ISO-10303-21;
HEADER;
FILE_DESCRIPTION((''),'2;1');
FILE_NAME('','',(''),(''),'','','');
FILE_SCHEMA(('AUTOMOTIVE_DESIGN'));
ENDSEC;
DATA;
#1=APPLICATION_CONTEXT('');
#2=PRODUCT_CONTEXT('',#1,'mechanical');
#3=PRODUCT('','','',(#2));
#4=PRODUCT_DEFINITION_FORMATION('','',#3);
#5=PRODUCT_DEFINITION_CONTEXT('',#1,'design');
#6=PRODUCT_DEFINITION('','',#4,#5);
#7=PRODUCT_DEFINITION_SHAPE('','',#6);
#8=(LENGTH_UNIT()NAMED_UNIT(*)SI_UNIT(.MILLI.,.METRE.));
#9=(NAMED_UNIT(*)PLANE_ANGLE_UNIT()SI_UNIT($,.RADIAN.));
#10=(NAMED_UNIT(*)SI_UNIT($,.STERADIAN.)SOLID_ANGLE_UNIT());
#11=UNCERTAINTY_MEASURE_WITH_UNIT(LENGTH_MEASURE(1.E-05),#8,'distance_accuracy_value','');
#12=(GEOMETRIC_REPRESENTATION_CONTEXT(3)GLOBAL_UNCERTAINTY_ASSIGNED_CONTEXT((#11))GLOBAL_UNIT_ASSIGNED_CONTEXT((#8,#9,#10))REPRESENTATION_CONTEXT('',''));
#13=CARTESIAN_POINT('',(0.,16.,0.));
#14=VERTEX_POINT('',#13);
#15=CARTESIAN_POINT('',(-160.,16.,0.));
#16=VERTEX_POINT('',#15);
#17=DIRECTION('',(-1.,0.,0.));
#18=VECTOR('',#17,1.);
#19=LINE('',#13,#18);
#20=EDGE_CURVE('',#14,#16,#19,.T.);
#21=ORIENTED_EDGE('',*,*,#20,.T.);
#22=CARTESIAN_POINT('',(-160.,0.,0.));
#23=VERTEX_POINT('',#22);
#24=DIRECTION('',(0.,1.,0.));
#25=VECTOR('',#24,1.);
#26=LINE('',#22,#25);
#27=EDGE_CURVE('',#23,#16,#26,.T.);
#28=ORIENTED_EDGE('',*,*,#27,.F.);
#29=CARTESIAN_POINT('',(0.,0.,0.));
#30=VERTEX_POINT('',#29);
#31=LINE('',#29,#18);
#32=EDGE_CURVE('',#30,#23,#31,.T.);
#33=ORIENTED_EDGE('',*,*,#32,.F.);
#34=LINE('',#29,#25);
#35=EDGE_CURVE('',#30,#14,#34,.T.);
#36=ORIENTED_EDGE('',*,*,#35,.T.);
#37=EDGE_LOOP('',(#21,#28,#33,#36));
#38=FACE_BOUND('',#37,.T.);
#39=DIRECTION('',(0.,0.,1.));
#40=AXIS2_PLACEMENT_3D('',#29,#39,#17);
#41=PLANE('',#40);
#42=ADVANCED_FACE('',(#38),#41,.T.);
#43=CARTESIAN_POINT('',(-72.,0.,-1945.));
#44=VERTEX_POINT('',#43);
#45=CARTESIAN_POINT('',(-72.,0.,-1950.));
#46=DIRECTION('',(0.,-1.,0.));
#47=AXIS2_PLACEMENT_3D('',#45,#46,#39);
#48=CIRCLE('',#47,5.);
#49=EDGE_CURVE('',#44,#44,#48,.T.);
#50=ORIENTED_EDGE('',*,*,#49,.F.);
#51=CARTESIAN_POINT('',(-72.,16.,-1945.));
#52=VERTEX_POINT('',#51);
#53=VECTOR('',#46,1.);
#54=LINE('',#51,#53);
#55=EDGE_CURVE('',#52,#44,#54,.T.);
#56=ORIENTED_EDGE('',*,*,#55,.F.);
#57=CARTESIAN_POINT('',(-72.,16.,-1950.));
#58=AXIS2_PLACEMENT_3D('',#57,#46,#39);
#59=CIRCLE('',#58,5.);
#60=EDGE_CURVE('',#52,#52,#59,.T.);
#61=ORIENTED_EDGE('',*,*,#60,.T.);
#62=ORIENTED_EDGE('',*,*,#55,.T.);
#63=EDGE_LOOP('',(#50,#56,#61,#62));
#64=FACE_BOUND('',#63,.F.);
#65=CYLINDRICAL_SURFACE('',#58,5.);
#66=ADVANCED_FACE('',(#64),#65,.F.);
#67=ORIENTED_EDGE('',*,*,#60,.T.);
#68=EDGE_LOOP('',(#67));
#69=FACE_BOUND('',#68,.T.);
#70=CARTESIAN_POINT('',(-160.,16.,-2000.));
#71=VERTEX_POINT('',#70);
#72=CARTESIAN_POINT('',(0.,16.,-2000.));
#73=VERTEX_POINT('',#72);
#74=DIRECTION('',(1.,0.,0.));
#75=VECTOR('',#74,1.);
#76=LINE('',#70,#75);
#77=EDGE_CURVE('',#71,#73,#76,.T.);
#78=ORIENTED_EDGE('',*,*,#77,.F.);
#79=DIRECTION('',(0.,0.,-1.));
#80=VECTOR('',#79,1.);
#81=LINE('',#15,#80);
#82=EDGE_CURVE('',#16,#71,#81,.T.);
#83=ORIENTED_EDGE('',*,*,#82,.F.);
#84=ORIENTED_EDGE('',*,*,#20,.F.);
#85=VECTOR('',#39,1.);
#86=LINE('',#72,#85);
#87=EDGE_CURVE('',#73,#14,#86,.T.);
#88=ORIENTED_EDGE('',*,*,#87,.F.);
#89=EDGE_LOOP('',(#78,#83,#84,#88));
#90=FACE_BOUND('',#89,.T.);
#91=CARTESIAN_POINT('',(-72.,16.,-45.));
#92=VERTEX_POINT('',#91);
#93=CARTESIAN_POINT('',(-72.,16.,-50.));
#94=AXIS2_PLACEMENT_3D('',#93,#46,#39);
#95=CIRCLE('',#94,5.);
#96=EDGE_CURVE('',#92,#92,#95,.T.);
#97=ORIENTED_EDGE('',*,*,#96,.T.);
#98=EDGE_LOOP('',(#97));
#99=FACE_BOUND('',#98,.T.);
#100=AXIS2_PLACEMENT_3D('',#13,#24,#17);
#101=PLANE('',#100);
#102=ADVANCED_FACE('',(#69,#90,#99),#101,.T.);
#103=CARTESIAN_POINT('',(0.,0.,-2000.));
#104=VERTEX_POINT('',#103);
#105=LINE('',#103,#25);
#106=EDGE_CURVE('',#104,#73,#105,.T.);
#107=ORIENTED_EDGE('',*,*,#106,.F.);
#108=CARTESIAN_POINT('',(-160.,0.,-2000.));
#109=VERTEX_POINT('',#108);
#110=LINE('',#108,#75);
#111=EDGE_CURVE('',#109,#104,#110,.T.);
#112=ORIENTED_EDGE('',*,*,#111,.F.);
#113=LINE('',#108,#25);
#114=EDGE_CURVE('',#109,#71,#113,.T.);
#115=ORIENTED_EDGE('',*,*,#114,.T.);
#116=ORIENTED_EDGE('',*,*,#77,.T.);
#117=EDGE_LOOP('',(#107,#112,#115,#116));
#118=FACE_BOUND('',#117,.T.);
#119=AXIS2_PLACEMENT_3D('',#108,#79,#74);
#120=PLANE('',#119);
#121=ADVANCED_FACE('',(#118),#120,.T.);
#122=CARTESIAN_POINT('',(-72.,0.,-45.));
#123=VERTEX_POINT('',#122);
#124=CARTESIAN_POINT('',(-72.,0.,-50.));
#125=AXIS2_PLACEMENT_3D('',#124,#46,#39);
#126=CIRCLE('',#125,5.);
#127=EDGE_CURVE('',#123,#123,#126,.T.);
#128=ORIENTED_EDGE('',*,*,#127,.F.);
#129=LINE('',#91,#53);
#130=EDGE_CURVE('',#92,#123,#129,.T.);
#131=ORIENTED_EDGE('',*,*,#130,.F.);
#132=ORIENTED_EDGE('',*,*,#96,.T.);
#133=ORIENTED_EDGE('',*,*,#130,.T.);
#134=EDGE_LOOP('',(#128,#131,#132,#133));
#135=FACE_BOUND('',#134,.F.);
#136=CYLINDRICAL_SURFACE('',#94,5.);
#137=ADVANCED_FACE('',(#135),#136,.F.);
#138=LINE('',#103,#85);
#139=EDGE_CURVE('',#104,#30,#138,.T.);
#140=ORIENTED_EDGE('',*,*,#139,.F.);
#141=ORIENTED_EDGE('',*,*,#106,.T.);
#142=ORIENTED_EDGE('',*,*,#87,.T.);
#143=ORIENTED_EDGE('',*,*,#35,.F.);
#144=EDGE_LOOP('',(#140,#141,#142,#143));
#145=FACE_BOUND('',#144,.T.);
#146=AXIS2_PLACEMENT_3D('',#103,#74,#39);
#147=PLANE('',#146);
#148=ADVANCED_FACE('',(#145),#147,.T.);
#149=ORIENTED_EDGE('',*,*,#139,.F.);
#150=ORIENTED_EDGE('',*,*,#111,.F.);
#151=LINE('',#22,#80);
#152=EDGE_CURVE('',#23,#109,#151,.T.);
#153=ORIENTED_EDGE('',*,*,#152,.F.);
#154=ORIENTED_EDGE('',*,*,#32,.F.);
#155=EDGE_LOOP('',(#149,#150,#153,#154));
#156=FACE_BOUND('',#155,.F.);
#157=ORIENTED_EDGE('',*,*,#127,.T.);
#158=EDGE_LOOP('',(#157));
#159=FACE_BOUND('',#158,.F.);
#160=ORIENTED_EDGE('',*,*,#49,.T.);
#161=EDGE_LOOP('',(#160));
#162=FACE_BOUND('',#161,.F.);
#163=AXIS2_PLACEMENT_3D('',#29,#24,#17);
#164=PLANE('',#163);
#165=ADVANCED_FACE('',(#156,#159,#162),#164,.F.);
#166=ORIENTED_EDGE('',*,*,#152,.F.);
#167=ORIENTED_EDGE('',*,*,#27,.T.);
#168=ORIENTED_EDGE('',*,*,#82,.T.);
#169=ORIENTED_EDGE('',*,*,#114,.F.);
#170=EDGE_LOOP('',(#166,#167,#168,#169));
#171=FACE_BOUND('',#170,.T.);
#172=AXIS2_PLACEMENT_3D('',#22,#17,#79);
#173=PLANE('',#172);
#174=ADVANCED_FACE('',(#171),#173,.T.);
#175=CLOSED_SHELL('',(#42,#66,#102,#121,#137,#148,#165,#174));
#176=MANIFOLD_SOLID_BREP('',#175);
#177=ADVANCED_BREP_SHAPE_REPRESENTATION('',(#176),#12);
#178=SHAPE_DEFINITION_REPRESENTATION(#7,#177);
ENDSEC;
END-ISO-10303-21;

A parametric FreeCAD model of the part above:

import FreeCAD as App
import Part
import Sketcher

doc = App.newDocument("Part")
body = doc.addObject("PartDesign::Body", "Body")

sketch1 = body.newObject("Sketcher::SketchObject", "Sketch")
sketch1.AttachmentSupport = (doc.getObject("XZ_Plane"), [""])
sketch1.MapMode = "FlatFace"
sketch1.addGeometry([
    Part.LineSegment(App.Vector(-160, 0, 0), App.Vector(0, 0, 0)),
    Part.LineSegment(App.Vector(0, 0, 0), App.Vector(0, -2000, 0)),
    Part.LineSegment(App.Vector(0, -2000, 0), App.Vector(-160, -2000, 0)),
    Part.LineSegment(App.Vector(-160, -2000, 0), App.Vector(-160, 0, 0)),
], False)
sketch1.addConstraint([
    Sketcher.Constraint("Coincident", 0, 2, 1, 1),
    Sketcher.Constraint("Coincident", 1, 2, 2, 1),
    Sketcher.Constraint("Coincident", 2, 2, 3, 1),
    Sketcher.Constraint("Coincident", 3, 2, 0, 1),
    Sketcher.Constraint("Horizontal", 0),
    Sketcher.Constraint("Vertical", 1),
    Sketcher.Constraint("Horizontal", 2),
    Sketcher.Constraint("Vertical", 3),
    Sketcher.Constraint("Coincident", 0, 2, -1, 1),
    Sketcher.Constraint("DistanceX", 0, 1, 0, 2, 160.0),
    Sketcher.Constraint("DistanceY", 1, 2, 1, 1, 2000.0),
])
pad1 = body.newObject("PartDesign::Pad", "Pad")
pad1.Profile = sketch1
pad1.Length = 16
pad1.Reversed = True

sketch2 = body.newObject("Sketcher::SketchObject", "Sketch001")
sketch2.AttachmentSupport = (doc.getObject("XZ_Plane"), [""])
sketch2.MapMode = "FlatFace"
sketch2.AttachmentOffset = App.Placement(App.Vector(0, 0, -16), App.Rotation())
sketch2.addGeometry([
    Part.Circle(App.Vector(-72, -50, 0), App.Vector(0, 0, 1), 5),
    Part.Circle(App.Vector(-72, -1950, 0), App.Vector(0, 0, 1), 5),
], False)
sketch2.addConstraint([
    Sketcher.Constraint("Equal", 0, 1),
    Sketcher.Constraint("Vertical", 0, 3, 1, 3),
    Sketcher.Constraint("Diameter", 0, 10.0),
    Sketcher.Constraint("DistanceX", 0, 3, -1, 1, 72.0),
    Sketcher.Constraint("DistanceY", 0, 3, -1, 1, 50.0),
    Sketcher.Constraint("DistanceY", 1, 3, -1, 1, 1950.0),
])
doc.recompute()
hole = body.newObject("PartDesign::Hole", "Hole")
hole.Profile = sketch2
hole.ThreadType = "None"
hole.Diameter = 10
hole.DepthType = "ThroughAll"
hole.Reversed = True

doc.recompute()
